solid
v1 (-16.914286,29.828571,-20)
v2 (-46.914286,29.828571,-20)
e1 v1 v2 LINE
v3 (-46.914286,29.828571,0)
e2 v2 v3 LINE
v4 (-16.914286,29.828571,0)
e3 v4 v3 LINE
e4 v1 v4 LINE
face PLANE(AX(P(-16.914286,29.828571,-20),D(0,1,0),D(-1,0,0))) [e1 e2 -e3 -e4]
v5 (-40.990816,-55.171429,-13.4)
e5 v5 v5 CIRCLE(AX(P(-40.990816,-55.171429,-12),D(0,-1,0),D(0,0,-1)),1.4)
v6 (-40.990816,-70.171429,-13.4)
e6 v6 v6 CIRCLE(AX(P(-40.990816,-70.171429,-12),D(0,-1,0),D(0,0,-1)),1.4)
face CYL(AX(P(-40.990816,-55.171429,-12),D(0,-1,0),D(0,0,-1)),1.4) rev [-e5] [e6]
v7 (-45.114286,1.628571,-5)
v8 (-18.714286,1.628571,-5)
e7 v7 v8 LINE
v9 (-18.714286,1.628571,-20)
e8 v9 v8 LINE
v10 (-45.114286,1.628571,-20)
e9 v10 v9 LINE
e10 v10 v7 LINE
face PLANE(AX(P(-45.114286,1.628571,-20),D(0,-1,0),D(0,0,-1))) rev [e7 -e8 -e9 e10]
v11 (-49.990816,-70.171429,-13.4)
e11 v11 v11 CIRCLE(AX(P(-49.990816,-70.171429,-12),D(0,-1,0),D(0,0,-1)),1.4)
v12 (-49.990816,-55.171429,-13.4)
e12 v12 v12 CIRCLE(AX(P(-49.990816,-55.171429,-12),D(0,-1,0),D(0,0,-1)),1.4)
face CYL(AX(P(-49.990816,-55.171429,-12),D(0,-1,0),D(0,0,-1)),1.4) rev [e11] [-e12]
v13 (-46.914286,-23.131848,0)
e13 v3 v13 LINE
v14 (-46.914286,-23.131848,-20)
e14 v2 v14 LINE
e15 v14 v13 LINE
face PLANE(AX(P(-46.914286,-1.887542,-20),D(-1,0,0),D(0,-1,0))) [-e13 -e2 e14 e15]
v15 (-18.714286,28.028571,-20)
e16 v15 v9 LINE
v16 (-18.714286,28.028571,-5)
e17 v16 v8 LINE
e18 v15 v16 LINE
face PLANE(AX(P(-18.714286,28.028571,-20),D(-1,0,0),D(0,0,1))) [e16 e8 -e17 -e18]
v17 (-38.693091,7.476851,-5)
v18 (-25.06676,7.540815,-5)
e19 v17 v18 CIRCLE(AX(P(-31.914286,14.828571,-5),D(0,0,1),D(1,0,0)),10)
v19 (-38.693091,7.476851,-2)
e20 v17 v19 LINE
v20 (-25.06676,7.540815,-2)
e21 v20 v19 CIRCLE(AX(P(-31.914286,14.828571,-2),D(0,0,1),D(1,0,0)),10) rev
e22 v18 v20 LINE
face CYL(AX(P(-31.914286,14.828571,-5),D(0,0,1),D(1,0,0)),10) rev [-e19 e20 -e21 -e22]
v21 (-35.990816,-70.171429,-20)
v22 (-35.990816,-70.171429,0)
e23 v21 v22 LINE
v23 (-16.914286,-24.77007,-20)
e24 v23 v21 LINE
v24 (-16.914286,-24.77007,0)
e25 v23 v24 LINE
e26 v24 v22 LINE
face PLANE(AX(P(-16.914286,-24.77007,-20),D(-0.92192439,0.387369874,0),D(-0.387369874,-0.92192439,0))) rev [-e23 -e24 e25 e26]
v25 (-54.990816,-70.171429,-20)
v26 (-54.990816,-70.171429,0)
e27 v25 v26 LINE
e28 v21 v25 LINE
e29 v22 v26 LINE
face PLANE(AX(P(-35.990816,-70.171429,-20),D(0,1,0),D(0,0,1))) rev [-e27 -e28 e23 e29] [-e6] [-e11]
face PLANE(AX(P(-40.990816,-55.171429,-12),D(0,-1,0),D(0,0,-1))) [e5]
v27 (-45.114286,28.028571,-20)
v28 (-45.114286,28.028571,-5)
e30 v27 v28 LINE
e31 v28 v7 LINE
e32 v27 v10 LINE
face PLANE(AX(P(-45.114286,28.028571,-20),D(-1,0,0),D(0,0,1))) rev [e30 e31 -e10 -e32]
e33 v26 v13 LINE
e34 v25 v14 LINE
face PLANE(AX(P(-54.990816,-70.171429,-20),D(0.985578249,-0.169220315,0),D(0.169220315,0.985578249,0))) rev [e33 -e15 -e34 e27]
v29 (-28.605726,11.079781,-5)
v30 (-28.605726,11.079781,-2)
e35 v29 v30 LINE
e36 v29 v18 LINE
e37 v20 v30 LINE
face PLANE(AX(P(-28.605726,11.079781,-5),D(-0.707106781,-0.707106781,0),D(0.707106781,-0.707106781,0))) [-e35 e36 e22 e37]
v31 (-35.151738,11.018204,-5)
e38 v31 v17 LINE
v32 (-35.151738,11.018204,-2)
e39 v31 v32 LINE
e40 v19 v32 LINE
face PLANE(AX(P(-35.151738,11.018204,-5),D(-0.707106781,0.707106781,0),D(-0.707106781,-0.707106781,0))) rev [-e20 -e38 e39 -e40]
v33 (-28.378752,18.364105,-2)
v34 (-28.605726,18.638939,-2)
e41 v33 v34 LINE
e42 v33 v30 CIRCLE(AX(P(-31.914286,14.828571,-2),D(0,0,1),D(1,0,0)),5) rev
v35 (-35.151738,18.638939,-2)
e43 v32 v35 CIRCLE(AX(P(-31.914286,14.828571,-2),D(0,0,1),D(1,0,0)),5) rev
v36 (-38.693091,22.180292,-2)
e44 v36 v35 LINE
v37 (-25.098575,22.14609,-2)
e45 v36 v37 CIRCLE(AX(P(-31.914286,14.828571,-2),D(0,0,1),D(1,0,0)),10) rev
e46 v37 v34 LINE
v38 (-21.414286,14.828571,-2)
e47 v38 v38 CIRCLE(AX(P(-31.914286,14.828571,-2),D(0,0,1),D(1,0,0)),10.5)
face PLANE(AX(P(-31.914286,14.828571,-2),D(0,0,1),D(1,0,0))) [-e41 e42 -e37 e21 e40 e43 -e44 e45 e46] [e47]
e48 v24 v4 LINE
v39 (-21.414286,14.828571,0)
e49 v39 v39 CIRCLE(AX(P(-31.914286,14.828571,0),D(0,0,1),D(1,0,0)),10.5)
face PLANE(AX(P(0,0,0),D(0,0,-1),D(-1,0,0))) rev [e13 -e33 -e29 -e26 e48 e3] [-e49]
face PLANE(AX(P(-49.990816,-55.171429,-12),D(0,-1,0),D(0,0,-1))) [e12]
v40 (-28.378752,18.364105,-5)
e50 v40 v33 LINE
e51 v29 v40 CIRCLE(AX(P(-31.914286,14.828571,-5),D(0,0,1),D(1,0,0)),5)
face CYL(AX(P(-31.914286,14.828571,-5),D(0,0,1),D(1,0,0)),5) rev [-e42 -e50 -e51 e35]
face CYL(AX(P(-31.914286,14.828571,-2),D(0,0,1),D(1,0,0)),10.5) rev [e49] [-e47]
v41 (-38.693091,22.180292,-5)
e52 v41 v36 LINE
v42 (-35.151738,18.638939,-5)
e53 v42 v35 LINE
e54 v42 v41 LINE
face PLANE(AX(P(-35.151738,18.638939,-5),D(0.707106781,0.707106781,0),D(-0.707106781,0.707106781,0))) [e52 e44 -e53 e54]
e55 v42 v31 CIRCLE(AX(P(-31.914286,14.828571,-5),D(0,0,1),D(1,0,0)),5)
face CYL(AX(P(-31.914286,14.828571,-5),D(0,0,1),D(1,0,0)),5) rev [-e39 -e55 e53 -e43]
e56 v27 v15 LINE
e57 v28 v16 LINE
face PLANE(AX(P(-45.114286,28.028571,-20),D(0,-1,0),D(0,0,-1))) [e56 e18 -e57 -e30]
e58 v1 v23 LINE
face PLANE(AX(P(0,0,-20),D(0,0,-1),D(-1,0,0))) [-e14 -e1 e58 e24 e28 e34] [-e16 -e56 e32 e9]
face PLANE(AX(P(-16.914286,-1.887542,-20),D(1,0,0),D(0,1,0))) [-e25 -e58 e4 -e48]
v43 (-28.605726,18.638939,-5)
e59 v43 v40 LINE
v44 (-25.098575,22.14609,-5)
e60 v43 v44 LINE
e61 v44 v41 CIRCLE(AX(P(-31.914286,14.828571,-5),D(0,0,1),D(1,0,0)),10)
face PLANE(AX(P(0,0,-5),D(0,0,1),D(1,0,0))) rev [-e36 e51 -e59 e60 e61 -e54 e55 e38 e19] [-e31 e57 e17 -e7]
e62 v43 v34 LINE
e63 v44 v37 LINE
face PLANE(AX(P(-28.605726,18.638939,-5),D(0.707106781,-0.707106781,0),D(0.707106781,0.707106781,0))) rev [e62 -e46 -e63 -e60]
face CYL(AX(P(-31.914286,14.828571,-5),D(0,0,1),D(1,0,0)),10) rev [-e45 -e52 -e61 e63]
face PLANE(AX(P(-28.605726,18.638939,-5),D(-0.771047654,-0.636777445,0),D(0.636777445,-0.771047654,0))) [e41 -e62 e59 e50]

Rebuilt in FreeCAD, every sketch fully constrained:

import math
import FreeCAD as App
import Part
import Sketcher

V = App.Vector

doc = App.newDocument("Part")
body = doc.addObject("PartDesign::Body", "Body")

# Sketch on XY plane
sketch1 = doc.addObject("Sketcher::SketchObject", "Sketch")
body.addObject(sketch1)
sketch1.AttachmentSupport = (doc.XY_Plane, [""])
sketch1.MapMode = "FlatFace"
sketch1.addGeometry([
    Part.LineSegment(V(-47, 30, 0), V(-47, -23, 0)),  # 0
    Part.LineSegment(V(-47, -23, 0), V(-55, -70, 0)),  # 1
    Part.LineSegment(V(-55, -70, 0), V(-36, -70, 0)),  # 2
    Part.LineSegment(V(-36, -70, 0), V(-17, -25, 0)),  # 3
    Part.LineSegment(V(-17, -25, 0), V(-17, 30, 0)),  # 4
    Part.LineSegment(V(-17, 30, 0), V(-47, 30, 0)),  # 5
    Part.LineSegment(V(-19, 2, 0), V(-45, 2, 0)),  # 6
    Part.LineSegment(V(-45, 2, 0), V(-45, 28, 0)),  # 7
    Part.LineSegment(V(-45, 28, 0), V(-19, 28, 0)),  # 8
    Part.LineSegment(V(-19, 28, 0), V(-19, 2, 0)),  # 9
], False)
sketch1.addConstraint([
    Sketcher.Constraint("Coincident", 0, 2, 1, 1),
    Sketcher.Constraint("Coincident", 1, 2, 2, 1),
    Sketcher.Constraint("Coincident", 2, 2, 3, 1),
    Sketcher.Constraint("Coincident", 3, 2, 4, 1),
    Sketcher.Constraint("Coincident", 4, 2, 5, 1),
    Sketcher.Constraint("Coincident", 5, 2, 0, 1),
    Sketcher.Constraint("Coincident", 6, 2, 7, 1),
    Sketcher.Constraint("Coincident", 7, 2, 8, 1),
    Sketcher.Constraint("Coincident", 8, 2, 9, 1),
    Sketcher.Constraint("Coincident", 9, 2, 6, 1),
    Sketcher.Constraint("Vertical", 0),
    Sketcher.Constraint("Horizontal", 2),
    Sketcher.Constraint("Vertical", 4),
    Sketcher.Constraint("Horizontal", 5),
    Sketcher.Constraint("Horizontal", 6),
    Sketcher.Constraint("Vertical", 7),
    Sketcher.Constraint("Horizontal", 8),
    Sketcher.Constraint("Vertical", 9),
    Sketcher.Constraint("Equal", 8, 7),
    Sketcher.Constraint("DistanceX", 2, 1, 2, 2, 19.0),
    Sketcher.Constraint("DistanceX", 5, 2, 5, 1, 30.0),
    Sketcher.Constraint("DistanceX", 6, 2, 6, 1, 26.4),
    Sketcher.Constraint("DistanceY", 2, 2, 4, 2, 100.0),
    Sketcher.Constraint("DistanceX", 0, 2, 6, 2, 1.8),
    Sketcher.Constraint("DistanceY", 6, 2, 5, 2, 28.2),
    Sketcher.Constraint("Distance", 1, 47.727901),
    Sketcher.Constraint("DistanceY", 0, 2, 0, 1, 52.960419),
    Sketcher.Constraint("DistanceY", 4, 1, 4, 2, 54.598641),
    Sketcher.Constraint("DistanceY", 1, 2, -1, 1, 70.171429),
    Sketcher.Constraint("DistanceX", 0, 2, -1, 1, 46.914286),
])
pad1 = doc.addObject("PartDesign::Pad", "Pad")
body.addObject(pad1)
pad1.Profile = sketch1
pad1.Length = 20
pad1.Reversed = True

# Sketch on XY plane
sketch2 = doc.addObject("Sketcher::SketchObject", "Sketch001")
body.addObject(sketch2)
sketch2.AttachmentSupport = (doc.XY_Plane, [""])
sketch2.MapMode = "FlatFace"
sketch2.addGeometry([
    Part.LineSegment(V(-45.11, 28.03, 0), V(-45.11, 1.63, 0)),  # 0
    Part.LineSegment(V(-45.11, 1.63, 0), V(-18.71, 1.63, 0)),  # 1
    Part.LineSegment(V(-18.71, 1.63, 0), V(-18.71, 28.03, 0)),  # 2
    Part.LineSegment(V(-18.71, 28.03, 0), V(-45.11, 28.03, 0)),  # 3
    Part.LineSegment(V(-25.1, 22.15, 0), V(-28.61, 18.64, 0)),  # 4
    Part.LineSegment(V(-28.61, 18.64, 0), V(-28.38, 18.36, 0)),  # 5
    Part.ArcOfCircle(Part.Circle(V(-31.91, 14.83, 0), V(0, 0, 1), 5), math.radians(-49), math.radians(45)),  # 6
    Part.LineSegment(V(-28.61, 11.08, 0), V(-25.07, 7.54, 0)),  # 7
    Part.ArcOfCircle(Part.Circle(V(-31.91, 14.83, 0), V(0, 0, 1), 10), math.radians(-133), math.radians(-47)),  # 8
    Part.LineSegment(V(-38.69, 7.48, 0), V(-35.15, 11.02, 0)),  # 9
    Part.ArcOfCircle(Part.Circle(V(-31.91, 14.83, 0), V(0, 0, 1), 5), math.radians(130), math.radians(230)),  # 10
    Part.LineSegment(V(-35.15, 18.64, 0), V(-38.69, 22.18, 0)),  # 11
    Part.ArcOfCircle(Part.Circle(V(-31.91, 14.83, 0), V(0, 0, 1), 10), math.radians(47), math.radians(133)),  # 12
], False)
sketch2.addConstraint([
    Sketcher.Constraint("Coincident", 0, 2, 1, 1),
    Sketcher.Constraint("Coincident", 1, 2, 2, 1),
    Sketcher.Constraint("Coincident", 2, 2, 3, 1),
    Sketcher.Constraint("Coincident", 3, 2, 0, 1),
    Sketcher.Constraint("Coincident", 4, 2, 5, 1),
    Sketcher.Constraint("Coincident", 5, 2, 6, 2),
    Sketcher.Constraint("Coincident", 6, 1, 7, 1),
    Sketcher.Constraint("Coincident", 7, 2, 8, 2),
    Sketcher.Constraint("Coincident", 8, 1, 9, 1),
    Sketcher.Constraint("Coincident", 9, 2, 10, 2),
    Sketcher.Constraint("Coincident", 10, 1, 11, 1),
    Sketcher.Constraint("Coincident", 11, 2, 12, 2),
    Sketcher.Constraint("Coincident", 12, 1, 4, 1),
    Sketcher.Constraint("Vertical", 0),
    Sketcher.Constraint("Horizontal", 1),
    Sketcher.Constraint("Vertical", 2),
    Sketcher.Constraint("Horizontal", 3),
    Sketcher.Constraint("Coincident", 8, 3, 6, 3),
    Sketcher.Constraint("Coincident", 10, 3, 6, 3),
    Sketcher.Constraint("Coincident", 12, 3, 6, 3),
    Sketcher.Constraint("Equal", 6, 10),
    Sketcher.Constraint("Equal", 8, 12),
    Sketcher.Constraint("Perpendicular", 4, 7),
    Sketcher.Constraint("Perpendicular", 7, 9),
    Sketcher.Constraint("Perpendicular", 9, 11),
    Sketcher.Constraint("Horizontal", 4, 2, 10, 1),
    Sketcher.Constraint("Vertical", 4, 2, 6, 1),
    Sketcher.Constraint("Vertical", 9, 2, 10, 1),
    Sketcher.Constraint("Vertical", 8, 1, 11, 2),
    Sketcher.Constraint("Equal", 3, 0),
    Sketcher.Constraint("Radius", 6, 5.0),
    Sketcher.Constraint("Radius", 8, 10.0),
    Sketcher.Constraint("DistanceX", 1, 1, 1, 2, 26.4),
    Sketcher.Constraint("DistanceX", 0, 2, 12, 3, 13.2),
    Sketcher.Constraint("DistanceY", 0, 2, 12, 3, 13.2),
    Sketcher.Constraint("Distance", 4, 4.959861),
    Sketcher.Constraint("Distance", 5, 0.356442),
    Sketcher.Constraint("Distance", 9, 5.008229),
    Sketcher.Constraint("DistanceY", -1, 1, 6, 3, 14.828571),
    Sketcher.Constraint("DistanceX", 5, 2, -1, 1, 28.378752),
])
pad2 = doc.addObject("PartDesign::Pad", "Pad001")
body.addObject(pad2)
pad2.Profile = sketch2
pad2.Length = 5
pad2.Reversed = True

# Sketch on XY plane
sketch3 = doc.addObject("Sketcher::SketchObject", "Sketch002")
body.addObject(sketch3)
sketch3.AttachmentSupport = (doc.XY_Plane, [""])
sketch3.MapMode = "FlatFace"
sketch3.addGeometry(Part.Circle(V(-32, 15, 0), V(0, 0, 1), 10), False)
sketch3.addConstraint([
    Sketcher.Constraint("Diameter", 0, 21.0),
    Sketcher.Constraint("DistanceY", -1, 1, 0, 3, 14.828571),
    Sketcher.Constraint("DistanceX", 0, 3, -1, 1, 31.914286),
])
pocket1 = doc.addObject("PartDesign::Pocket", "Pocket")
body.addObject(pocket1)
pocket1.Profile = sketch3
pocket1.Length = 2

# Sketch on XZ plane
sketch4 = doc.addObject("Sketcher::SketchObject", "Sketch003")
body.addObject(sketch4)
sketch4.AttachmentSupport = (doc.XZ_Plane, [""])
sketch4.MapMode = "FlatFace"
sketch4.AttachmentOffset = App.Placement(V(0, 0, 70.171429), App.Rotation())
sketch4.addGeometry([
    Part.Circle(V(-41, -12, 0), V(0, 0, 1), 1.4),
    Part.Circle(V(-50, -12, 0), V(0, 0, 1), 1.4),
], False)
sketch4.addConstraint([
    Sketcher.Constraint("Equal", 0, 1),
    Sketcher.Constraint("Horizontal", 0, 3, 1, 3),
    Sketcher.Constraint("Diameter", 0, 2.8),
    Sketcher.Constraint("DistanceY", 0, 3, -1, 1, 12.0),
    Sketcher.Constraint("DistanceX", 1, 3, 0, 3, 9.0),
    Sketcher.Constraint("DistanceX", 0, 3, -1, 1, 40.990816),
])
pocket2 = doc.addObject("PartDesign::Pocket", "Pocket001")
body.addObject(pocket2)
pocket2.Profile = sketch4
pocket2.Length = 15

doc.recompute()
